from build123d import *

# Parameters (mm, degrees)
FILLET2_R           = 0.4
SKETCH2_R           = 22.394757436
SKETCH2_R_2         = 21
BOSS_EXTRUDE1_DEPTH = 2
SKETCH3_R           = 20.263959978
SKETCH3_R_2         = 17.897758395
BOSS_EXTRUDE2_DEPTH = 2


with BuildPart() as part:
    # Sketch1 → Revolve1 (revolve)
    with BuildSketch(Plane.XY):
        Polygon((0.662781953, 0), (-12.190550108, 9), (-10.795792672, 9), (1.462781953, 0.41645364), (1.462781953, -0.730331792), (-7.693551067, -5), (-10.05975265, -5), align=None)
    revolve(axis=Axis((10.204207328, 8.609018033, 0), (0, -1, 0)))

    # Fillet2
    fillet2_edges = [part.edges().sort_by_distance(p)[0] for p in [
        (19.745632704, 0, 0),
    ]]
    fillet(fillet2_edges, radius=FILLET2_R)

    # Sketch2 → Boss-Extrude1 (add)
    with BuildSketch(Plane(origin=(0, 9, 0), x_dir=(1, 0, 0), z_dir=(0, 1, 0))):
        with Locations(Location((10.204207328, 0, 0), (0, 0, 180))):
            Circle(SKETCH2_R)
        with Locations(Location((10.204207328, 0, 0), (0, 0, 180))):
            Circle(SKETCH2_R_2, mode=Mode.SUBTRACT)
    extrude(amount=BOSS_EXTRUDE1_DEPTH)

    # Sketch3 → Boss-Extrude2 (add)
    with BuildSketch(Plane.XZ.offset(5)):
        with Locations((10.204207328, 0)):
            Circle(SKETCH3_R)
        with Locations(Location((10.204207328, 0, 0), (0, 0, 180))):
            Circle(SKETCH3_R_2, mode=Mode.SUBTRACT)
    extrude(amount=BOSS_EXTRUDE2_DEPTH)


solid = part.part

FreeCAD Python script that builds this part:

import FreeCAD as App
import Part
import Sketcher

V = App.Vector
Q = App.Units.Quantity


def edges_at(feature, points):
    """Names of the edges that pass closest to the given points."""
    edges = feature.Shape.Edges
    near = lambda p: min(range(len(edges)), key=lambda i: edges[i].distToShape(Part.Vertex(*p))[0])
    return sorted({f"Edge{near(p) + 1}" for p in points})

doc = App.newDocument("Part")
body = doc.addObject("PartDesign::Body", "Body")

sketch1 = body.newObject("Sketcher::SketchObject", "Sketch")
sketch1.AttachmentSupport = (doc.getObject("XY_Plane"), [""])
sketch1.MapMode = "FlatFace"
sketch1.addGeometry(Part.LineSegment(V(-12.2, 9, 0), V(0.7, 0, 0)), False)
sketch1.addGeometry(Part.LineSegment(V(0.7, 0, 0), V(-10.1, -5, 0)), False)
sketch1.addGeometry(Part.LineSegment(V(-10.1, -5, 0), V(-7.7, -5, 0)), False)
sketch1.addGeometry(Part.LineSegment(V(-7.7, -5, 0), V(1.5, -0.7, 0)), False)
sketch1.addGeometry(Part.LineSegment(V(1.5, -0.7, 0), V(1.5, 0.4, 0)), False)
sketch1.addGeometry(Part.LineSegment(V(1.5, 0.4, 0), V(-10.8, 9, 0)), False)
sketch1.addGeometry(Part.LineSegment(V(-10.8, 9, 0), V(-12.2, 9, 0)), False)
sketch1.addGeometry(Part.LineSegment(V(10.2, 9, 0), V(10.2, -5, 0)), True)
sketch1.addConstraint(Sketcher.Constraint("Coincident", 0, 2, 1, 1))
sketch1.addConstraint(Sketcher.Constraint("Coincident", 1, 2, 2, 1))
sketch1.addConstraint(Sketcher.Constraint("Coincident", 2, 2, 3, 1))
sketch1.addConstraint(Sketcher.Constraint("Coincident", 3, 2, 4, 1))
sketch1.addConstraint(Sketcher.Constraint("Coincident", 4, 2, 5, 1))
sketch1.addConstraint(Sketcher.Constraint("Coincident", 5, 2, 6, 1))
sketch1.addConstraint(Sketcher.Constraint("Coincident", 6, 2, 0, 1))
sketch1.addConstraint(Sketcher.Constraint("Horizontal", 2))
sketch1.addConstraint(Sketcher.Constraint("Vertical", 4))
sketch1.addConstraint(Sketcher.Constraint("Horizontal", 6))
sketch1.addConstraint(Sketcher.Constraint("Vertical", 7))
sketch1.addConstraint(Sketcher.Constraint("PointOnObject", 0, 2, -1))
sketch1.addConstraint(Sketcher.Constraint("Parallel", 1, 3))
sketch1.addConstraint(Sketcher.Constraint("Parallel", 0, 5))
sketch1.addConstraint(Sketcher.Constraint("Horizontal", 6, 2, 7, 1))
sketch1.addConstraint(Sketcher.Constraint("Horizontal", 2, 2, 7, 2))
sketch1.addConstraint(Sketcher.Constraint("DistanceY", 7, 2, 7, 1, Q("14 mm")))
sketch1.addConstraint(Sketcher.Constraint("Angle", 0, Q("-35 deg")))
sketch1.addConstraint(Sketcher.Constraint("Angle", 1, Q("-155 deg")))
sketch1.addConstraint(Sketcher.Constraint("DistanceY", 1, 2, -1, 1, Q("5 mm")))
sketch1.addConstraint(Sketcher.Constraint("DistanceX", 5, 2, 7, 1, Q("21 mm")))
sketch1.addConstraint(Sketcher.Constraint("DistanceX", 0, 2, 3, 2, Q("0.8 mm")))
sketch1.addConstraint(Sketcher.Constraint("DistanceX", 2, 1, 2, 2, Q("2.366202 mm")))
sketch1.addConstraint(Sketcher.Constraint("DistanceX", 6, 2, 6, 1, Q("1.394757 mm")))
sketch1.addConstraint(Sketcher.Constraint("DistanceX", -1, 1, 0, 2, Q("0.662782 mm")))
revolution = body.newObject("PartDesign::Revolution", "Revolution")
revolution.Profile = sketch1
revolution.ReferenceAxis = (sketch1, ["Axis0"])
revolution.Angle = 360
doc.recompute()

fillet = body.newObject("PartDesign::Fillet", "Fillet")
fillet.Base = (revolution, edges_at(revolution, [(19.746, 0, 0)]))
fillet.Radius = 0.4

sketch2 = body.newObject("Sketcher::SketchObject", "Sketch001")
sketch2.AttachmentSupport = (doc.getObject("XZ_Plane"), [""])
sketch2.MapMode = "FlatFace"
sketch2.AttachmentOffset = App.Placement(V(0, 0, -9), App.Rotation())
sketch2.addGeometry(Part.Circle(V(10, 0, 0), V(0, 0, 1), 22), False)
sketch2.addGeometry(Part.Circle(V(10, 0, 0), V(0, 0, 1), 21), False)
sketch2.addConstraint(Sketcher.Constraint("Coincident", 1, 3, 0, 3))
sketch2.addConstraint(Sketcher.Constraint("PointOnObject", 0, 3, -1))
sketch2.addConstraint(Sketcher.Constraint("Diameter", 1, Q("42 mm")))
sketch2.addConstraint(Sketcher.Constraint("Diameter", 0, Q("44.789515 mm")))
sketch2.addConstraint(Sketcher.Constraint("DistanceX", -1, 1, 0, 3, Q("10.204207 mm")))
pad1 = body.newObject("PartDesign::Pad", "Pad")
pad1.Profile = sketch2
pad1.Length = 2
pad1.Reversed = True

sketch3 = body.newObject("Sketcher::SketchObject", "Sketch002")
sketch3.AttachmentSupport = (doc.getObject("XZ_Plane"), [""])
sketch3.MapMode = "FlatFace"
sketch3.AttachmentOffset = App.Placement(V(0, 0, 5), App.Rotation())
sketch3.addGeometry(Part.Circle(V(10, 0, 0), V(0, 0, 1), 20), False)
sketch3.addGeometry(Part.Circle(V(10, 0, 0), V(0, 0, 1), 18), False)
sketch3.addConstraint(Sketcher.Constraint("Coincident", 1, 3, 0, 3))
sketch3.addConstraint(Sketcher.Constraint("PointOnObject", 0, 3, -1))
sketch3.addConstraint(Sketcher.Constraint("Diameter", 0, Q("40.52792 mm")))
sketch3.addConstraint(Sketcher.Constraint("Diameter", 1, Q("35.795517 mm")))
sketch3.addConstraint(Sketcher.Constraint("DistanceX", -1, 1, 0, 3, Q("10.204207 mm")))
pad2 = body.newObject("PartDesign::Pad", "Pad001")
pad2.Profile = sketch3
pad2.Length = 2

doc.recompute()
